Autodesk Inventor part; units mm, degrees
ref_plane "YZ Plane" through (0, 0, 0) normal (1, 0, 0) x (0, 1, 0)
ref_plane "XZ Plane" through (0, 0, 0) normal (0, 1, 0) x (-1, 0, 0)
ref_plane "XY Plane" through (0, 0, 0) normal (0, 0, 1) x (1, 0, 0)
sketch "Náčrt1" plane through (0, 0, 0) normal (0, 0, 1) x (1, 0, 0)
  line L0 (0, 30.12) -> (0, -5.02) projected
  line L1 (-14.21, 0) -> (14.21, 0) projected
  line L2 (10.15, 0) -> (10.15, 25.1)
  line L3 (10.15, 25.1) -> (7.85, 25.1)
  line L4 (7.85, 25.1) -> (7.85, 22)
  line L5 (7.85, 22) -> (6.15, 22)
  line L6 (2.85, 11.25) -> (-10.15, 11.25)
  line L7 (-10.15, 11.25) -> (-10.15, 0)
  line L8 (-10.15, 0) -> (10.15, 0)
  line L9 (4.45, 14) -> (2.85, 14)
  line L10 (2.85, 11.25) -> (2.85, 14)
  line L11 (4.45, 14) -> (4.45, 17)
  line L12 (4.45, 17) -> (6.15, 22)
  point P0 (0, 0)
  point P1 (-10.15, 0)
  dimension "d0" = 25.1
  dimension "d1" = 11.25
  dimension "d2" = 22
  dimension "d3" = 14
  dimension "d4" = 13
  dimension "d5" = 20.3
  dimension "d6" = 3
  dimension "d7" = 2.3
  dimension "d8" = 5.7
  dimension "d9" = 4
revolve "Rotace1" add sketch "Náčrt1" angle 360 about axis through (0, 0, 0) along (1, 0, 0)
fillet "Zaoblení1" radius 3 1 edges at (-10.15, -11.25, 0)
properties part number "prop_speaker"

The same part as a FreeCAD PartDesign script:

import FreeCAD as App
import Part
import Sketcher
from FreeCAD import Vector
Q = App.Units.Quantity


def edges_at(feature, points):
    """Names of the edges that pass closest to the given points."""
    edges = feature.Shape.Edges
    near = lambda p: min(range(len(edges)), key=lambda i: edges[i].distToShape(Part.Vertex(*p))[0])
    return sorted({f"Edge{near(p) + 1}" for p in points})


def add_polygon(sketch, points):
    """Adds a closed chain of lines whose ends are joined by coincident constraints."""
    first, n = sketch.GeometryCount, len(points)
    for a, b in zip(points, points[1:] + points[:1]):
        sketch.addGeometry(Part.LineSegment(App.Vector(*a, 0), App.Vector(*b, 0)), False)
    for i in range(n):
        sketch.addConstraint(Sketcher.Constraint("Coincident", first + i, 2, first + (i + 1) % n, 1))

doc = App.newDocument("Part")
params = doc.addObject("Spreadsheet::Sheet", "Params")
for row, (alias, value) in enumerate([
    ("sketch1_width", "13 mm"),
    ("sketch1_height", "3 mm"),
    ("sketch1_width2", "20.3 mm"),
    ("sketch1_width3", "2.3 mm"),
    ("sketch1_height2", "25.1 mm"),
    ("revolution_angle", "360 deg"),
    ("fillet_radius", "3 mm"),
], start=1):
    params.set(f"A{row}", alias)
    params.set(f"B{row}", "=" + value)
    params.setAlias(f"B{row}", alias)

body = doc.addObject("PartDesign::Body", "Body")

sketch1 = doc.addObject("Sketcher::SketchObject", "Sketch")
body.addObject(sketch1)
sketch1.AttachmentSupport = (doc.XY_Plane, [""])
sketch1.MapMode = "FlatFace"
add_polygon(sketch1, [(2.9, 11.2), (-10.2, 11.2), (-10.2, 0), (10.2, 0), (10.2, 25.1), (7.8, 25.1), (7.8, 22), (6.2, 22), (4.5, 17), (4.5, 14), (2.9, 14)])
sketch1.addConstraint([
    Sketcher.Constraint("Horizontal", 0),
    Sketcher.Constraint("Vertical", 1),
    Sketcher.Constraint("Horizontal", 2),
    Sketcher.Constraint("Vertical", 3),
    Sketcher.Constraint("Horizontal", 4),
    Sketcher.Constraint("Vertical", 5),
    Sketcher.Constraint("Horizontal", 6),
    Sketcher.Constraint("Vertical", 8),
    Sketcher.Constraint("Horizontal", 9),
    Sketcher.Constraint("Vertical", 10),
    Sketcher.Constraint("Symmetric", 1, 2, 2, 2, -1, 1),
    Sketcher.Constraint("DistanceX", 0, 2, 0, 1, Q("13 mm")),
    Sketcher.Constraint("DistanceY", 8, 2, 8, 1, Q("3 mm")),
    Sketcher.Constraint("DistanceX", 2, 1, 2, 2, Q("20.3 mm")),
    Sketcher.Constraint("DistanceX", 4, 2, 4, 1, Q("2.3 mm")),
    Sketcher.Constraint("DistanceY", 3, 1, 3, 2, Q("25.1 mm")),
    Sketcher.Constraint("DistanceY", -1, 1, 5, 2, Q("22 mm")),
    Sketcher.Constraint("DistanceY", -1, 1, 8, 2, Q("14 mm")),
    Sketcher.Constraint("DistanceX", 6, 2, 3, 2, Q("4 mm")),
    Sketcher.Constraint("DistanceY", 1, 2, 1, 1, Q("11.25 mm")),
    Sketcher.Constraint("DistanceX", 7, 2, 3, 2, Q("5.7 mm")),
])
sketch1.setExpression("Constraints[22]", "Params.sketch1_width")
sketch1.setExpression("Constraints[23]", "Params.sketch1_height")
sketch1.setExpression("Constraints[24]", "Params.sketch1_width2")
sketch1.setExpression("Constraints[25]", "Params.sketch1_width3")
sketch1.setExpression("Constraints[26]", "Params.sketch1_height2")
revolution = doc.addObject("PartDesign::Revolution", "Revolution")
body.addObject(revolution)
revolution.Profile = sketch1
revolution.ReferenceAxis = (sketch1, ["H_Axis"])
revolution.setExpression("Angle", "Params.revolution_angle")
doc.recompute()

fillet = doc.addObject("PartDesign::Fillet", "Fillet")
body.addObject(fillet)
fillet.Base = (revolution, edges_at(revolution, [(-10.15, -11.25, 0)]))
fillet.setExpression("Radius", "Params.fillet_radius")

doc.recompute()
